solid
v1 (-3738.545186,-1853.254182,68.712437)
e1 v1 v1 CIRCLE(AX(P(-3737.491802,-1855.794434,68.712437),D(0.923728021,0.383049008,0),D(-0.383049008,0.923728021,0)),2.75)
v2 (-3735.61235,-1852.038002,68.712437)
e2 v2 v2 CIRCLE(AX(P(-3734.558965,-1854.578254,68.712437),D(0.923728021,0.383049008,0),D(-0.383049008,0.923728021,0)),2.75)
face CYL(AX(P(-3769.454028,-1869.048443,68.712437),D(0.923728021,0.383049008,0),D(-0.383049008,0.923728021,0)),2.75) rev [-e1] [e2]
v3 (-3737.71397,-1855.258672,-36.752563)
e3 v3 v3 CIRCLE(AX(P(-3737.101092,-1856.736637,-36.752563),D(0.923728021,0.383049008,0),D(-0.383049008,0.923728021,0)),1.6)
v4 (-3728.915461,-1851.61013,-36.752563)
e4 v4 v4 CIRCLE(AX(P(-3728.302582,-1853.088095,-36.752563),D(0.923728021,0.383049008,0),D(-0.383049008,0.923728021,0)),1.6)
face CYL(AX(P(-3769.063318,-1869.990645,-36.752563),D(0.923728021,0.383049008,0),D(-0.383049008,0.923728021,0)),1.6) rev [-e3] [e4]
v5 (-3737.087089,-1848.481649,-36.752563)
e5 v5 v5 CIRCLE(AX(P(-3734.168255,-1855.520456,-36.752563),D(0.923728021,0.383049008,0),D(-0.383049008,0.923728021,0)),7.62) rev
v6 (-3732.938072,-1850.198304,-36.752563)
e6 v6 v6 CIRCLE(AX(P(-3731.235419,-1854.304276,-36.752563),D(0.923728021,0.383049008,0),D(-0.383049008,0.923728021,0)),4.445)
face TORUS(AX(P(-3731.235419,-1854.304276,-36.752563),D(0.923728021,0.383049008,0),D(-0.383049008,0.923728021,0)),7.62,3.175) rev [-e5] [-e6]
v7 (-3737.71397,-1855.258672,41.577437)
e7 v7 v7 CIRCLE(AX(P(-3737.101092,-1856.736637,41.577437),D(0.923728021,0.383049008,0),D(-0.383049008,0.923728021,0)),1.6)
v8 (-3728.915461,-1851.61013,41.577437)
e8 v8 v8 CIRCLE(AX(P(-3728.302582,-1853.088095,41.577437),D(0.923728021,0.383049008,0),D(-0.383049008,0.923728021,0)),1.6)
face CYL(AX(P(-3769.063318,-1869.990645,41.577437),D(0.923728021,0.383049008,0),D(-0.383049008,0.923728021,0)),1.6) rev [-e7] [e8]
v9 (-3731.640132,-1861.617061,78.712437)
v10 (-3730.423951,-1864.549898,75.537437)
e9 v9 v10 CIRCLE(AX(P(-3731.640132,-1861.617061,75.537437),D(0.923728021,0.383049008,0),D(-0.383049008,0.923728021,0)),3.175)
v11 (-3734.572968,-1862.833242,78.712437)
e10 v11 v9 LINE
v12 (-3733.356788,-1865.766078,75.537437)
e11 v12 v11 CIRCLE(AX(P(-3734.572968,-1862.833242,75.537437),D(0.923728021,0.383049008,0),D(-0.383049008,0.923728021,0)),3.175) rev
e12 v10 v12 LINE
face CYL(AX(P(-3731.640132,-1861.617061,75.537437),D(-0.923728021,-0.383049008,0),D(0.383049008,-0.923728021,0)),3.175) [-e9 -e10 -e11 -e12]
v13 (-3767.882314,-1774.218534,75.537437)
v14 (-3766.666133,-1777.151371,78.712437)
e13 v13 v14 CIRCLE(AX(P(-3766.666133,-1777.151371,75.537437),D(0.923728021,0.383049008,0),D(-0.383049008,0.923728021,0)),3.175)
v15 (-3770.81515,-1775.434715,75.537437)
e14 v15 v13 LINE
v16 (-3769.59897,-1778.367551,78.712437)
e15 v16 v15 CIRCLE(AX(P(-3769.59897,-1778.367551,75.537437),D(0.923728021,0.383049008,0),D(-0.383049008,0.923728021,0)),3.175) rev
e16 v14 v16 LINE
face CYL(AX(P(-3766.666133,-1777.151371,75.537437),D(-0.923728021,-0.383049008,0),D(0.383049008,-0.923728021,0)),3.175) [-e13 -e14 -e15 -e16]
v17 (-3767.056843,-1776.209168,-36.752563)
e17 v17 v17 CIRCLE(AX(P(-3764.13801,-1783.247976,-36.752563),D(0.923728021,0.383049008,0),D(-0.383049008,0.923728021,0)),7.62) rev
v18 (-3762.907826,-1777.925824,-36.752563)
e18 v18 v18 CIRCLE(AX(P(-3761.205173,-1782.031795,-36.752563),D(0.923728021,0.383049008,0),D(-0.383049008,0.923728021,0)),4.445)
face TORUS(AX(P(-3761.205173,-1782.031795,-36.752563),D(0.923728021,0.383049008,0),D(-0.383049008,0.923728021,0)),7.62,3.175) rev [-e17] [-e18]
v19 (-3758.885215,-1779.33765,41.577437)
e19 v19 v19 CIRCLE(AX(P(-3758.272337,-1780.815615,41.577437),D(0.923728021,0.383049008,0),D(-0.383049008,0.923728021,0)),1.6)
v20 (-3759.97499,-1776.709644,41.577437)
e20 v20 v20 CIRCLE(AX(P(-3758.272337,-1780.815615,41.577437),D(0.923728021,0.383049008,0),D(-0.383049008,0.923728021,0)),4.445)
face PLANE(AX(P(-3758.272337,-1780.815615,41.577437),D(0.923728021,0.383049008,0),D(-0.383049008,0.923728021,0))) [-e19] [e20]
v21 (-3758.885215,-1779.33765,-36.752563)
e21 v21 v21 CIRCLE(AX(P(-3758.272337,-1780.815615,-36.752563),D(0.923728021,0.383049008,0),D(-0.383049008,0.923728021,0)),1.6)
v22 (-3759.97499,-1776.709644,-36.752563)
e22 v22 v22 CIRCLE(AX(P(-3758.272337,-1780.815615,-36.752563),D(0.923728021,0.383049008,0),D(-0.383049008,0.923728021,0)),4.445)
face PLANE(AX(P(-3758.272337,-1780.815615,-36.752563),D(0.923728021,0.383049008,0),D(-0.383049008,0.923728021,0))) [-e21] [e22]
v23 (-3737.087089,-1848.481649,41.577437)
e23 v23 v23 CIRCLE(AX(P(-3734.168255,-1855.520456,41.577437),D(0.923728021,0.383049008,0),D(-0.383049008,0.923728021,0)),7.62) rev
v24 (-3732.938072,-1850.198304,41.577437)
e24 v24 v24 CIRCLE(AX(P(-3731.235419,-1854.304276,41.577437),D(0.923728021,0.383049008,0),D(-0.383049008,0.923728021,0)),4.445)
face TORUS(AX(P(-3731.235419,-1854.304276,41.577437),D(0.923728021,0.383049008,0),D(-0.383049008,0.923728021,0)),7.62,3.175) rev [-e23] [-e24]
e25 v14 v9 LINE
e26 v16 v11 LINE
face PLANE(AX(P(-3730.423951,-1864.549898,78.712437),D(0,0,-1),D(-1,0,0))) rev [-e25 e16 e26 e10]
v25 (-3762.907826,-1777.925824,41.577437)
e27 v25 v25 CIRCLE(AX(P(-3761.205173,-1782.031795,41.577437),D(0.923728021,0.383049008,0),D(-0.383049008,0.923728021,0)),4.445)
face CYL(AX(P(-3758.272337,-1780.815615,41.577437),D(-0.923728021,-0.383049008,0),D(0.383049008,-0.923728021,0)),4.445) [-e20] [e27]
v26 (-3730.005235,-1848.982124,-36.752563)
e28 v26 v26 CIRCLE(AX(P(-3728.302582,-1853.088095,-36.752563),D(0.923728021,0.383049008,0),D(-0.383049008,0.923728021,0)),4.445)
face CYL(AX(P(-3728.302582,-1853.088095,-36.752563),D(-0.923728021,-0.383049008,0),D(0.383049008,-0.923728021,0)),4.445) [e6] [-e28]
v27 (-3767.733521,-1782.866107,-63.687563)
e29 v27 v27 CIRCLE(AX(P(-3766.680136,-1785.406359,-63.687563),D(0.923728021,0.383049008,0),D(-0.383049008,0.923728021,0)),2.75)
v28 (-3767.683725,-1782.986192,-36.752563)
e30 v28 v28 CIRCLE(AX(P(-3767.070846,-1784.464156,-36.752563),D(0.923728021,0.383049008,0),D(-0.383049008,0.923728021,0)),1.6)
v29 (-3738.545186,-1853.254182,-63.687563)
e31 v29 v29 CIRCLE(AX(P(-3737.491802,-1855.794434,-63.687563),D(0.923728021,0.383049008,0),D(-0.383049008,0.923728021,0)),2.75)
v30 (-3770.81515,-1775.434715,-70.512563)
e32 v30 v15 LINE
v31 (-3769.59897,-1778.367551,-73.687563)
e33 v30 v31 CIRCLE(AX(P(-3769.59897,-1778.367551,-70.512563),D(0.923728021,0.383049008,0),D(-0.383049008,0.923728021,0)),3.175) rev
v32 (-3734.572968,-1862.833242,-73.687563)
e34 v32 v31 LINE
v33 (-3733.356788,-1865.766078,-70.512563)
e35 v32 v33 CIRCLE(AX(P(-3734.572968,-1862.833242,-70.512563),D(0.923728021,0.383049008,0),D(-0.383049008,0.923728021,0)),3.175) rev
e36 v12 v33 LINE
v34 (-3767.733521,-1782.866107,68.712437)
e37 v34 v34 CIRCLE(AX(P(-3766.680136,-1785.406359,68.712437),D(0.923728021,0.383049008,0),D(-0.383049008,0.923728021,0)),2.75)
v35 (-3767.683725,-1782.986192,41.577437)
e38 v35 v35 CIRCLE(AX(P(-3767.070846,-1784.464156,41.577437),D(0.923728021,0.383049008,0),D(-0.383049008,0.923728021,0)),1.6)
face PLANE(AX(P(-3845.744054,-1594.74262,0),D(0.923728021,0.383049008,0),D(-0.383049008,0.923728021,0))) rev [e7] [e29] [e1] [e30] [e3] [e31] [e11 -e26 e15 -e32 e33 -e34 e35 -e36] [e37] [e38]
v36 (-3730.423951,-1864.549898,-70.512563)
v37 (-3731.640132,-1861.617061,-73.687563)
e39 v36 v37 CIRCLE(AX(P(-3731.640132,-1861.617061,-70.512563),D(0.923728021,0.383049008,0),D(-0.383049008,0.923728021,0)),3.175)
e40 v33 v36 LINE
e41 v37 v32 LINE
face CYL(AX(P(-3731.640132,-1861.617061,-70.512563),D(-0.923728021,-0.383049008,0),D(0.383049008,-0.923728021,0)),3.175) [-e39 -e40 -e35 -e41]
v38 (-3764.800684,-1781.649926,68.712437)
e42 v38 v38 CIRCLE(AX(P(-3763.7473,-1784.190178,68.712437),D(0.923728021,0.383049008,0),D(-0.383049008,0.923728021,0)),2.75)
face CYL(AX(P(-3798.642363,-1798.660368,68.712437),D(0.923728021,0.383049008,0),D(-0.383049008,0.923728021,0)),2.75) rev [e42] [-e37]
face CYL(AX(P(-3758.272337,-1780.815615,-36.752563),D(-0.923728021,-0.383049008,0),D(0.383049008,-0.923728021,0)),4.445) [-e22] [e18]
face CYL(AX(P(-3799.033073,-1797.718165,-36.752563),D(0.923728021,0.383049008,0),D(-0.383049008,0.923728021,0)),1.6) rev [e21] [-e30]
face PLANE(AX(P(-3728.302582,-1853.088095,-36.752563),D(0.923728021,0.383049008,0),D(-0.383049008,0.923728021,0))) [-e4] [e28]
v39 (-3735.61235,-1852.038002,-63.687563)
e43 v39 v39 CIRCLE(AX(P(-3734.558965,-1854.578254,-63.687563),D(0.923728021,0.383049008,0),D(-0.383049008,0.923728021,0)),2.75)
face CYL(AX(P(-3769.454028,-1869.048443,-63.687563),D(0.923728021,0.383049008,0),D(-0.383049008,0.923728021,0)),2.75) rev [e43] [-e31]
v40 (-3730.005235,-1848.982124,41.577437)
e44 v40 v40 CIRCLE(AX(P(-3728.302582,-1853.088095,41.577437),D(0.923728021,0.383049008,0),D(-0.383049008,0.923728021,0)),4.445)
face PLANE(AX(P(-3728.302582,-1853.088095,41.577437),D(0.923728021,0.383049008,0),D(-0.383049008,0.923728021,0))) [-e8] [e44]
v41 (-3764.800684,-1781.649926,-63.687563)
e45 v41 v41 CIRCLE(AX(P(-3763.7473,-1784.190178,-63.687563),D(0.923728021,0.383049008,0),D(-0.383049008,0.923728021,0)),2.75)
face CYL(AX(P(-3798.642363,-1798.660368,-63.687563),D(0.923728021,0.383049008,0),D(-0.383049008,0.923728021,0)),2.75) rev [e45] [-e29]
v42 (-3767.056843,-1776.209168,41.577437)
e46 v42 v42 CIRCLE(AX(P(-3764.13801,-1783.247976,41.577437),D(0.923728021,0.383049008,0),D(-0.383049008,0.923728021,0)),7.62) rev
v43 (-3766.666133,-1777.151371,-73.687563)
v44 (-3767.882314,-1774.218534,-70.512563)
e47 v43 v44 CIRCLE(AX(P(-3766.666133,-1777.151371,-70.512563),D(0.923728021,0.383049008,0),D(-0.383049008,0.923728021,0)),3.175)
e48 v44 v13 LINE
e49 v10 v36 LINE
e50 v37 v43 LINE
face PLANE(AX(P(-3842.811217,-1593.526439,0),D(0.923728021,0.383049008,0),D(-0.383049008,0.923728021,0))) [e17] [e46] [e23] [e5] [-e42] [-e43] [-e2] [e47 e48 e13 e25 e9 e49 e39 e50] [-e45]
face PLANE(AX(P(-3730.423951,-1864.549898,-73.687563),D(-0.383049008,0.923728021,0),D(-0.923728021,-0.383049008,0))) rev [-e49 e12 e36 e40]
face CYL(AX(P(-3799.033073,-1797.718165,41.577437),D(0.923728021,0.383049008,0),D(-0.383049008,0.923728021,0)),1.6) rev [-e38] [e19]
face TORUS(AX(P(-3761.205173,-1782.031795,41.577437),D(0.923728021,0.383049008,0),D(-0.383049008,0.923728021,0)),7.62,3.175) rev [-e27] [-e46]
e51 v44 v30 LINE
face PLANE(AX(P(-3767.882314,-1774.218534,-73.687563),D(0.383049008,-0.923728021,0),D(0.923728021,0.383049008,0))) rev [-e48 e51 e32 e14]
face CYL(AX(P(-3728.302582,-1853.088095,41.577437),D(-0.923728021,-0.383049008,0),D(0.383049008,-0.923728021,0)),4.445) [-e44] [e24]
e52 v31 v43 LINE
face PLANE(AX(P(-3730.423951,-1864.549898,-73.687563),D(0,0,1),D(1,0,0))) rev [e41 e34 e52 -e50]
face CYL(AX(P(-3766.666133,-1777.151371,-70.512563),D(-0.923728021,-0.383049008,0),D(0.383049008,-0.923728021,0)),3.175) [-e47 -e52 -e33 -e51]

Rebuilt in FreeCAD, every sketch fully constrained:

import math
import FreeCAD as App
import Part
import Sketcher
Q = App.Units.Quantity


def edges_at(feature, points):
    """Names of the edges that pass closest to the given points."""
    edges = feature.Shape.Edges
    near = lambda p: min(range(len(edges)), key=lambda i: edges[i].distToShape(Part.Vertex(*p))[0])
    return sorted({f"Edge{near(p) + 1}" for p in points})

doc = App.newDocument("Part")
body = doc.addObject("PartDesign::Body", "Body")

# Sketch on an angled plane
sketch1 = body.newObject("Sketcher::SketchObject", "Sketch")
sketch1.Placement = App.Placement(App.Vector(-3845.744054, -1594.74262, 0), App.Rotation(App.Vector(0, 0, -1), App.Vector(-0.383049008, 0.923728021, 0), App.Vector(0.923728021, 0.383049008, 0), "ZXY"))
sketch1.addGeometry([
    Part.LineSegment(App.Vector(-79, -196, 0), App.Vector(-79, -293, 0)),
    Part.LineSegment(App.Vector(-79, -293, 0), App.Vector(74, -293, 0)),
    Part.LineSegment(App.Vector(74, -293, 0), App.Vector(74, -196, 0)),
    Part.LineSegment(App.Vector(74, -196, 0), App.Vector(-79, -196, 0)),
], False)
sketch1.addConstraint([
    Sketcher.Constraint("Coincident", 0, 2, 1, 1),
    Sketcher.Constraint("Coincident", 1, 2, 2, 1),
    Sketcher.Constraint("Coincident", 2, 2, 3, 1),
    Sketcher.Constraint("Coincident", 3, 2, 0, 1),
    Sketcher.Constraint("Vertical", 0),
    Sketcher.Constraint("Horizontal", 1),
    Sketcher.Constraint("Vertical", 2),
    Sketcher.Constraint("Horizontal", 3),
    Sketcher.Constraint("DistanceX", 1, 1, 1, 2, Q("6 in")),
    Sketcher.Constraint("DistanceY", 0, 2, 0, 1, Q("3.85 in")),
    Sketcher.Constraint("DistanceX", 0, 2, -1, 1, 78.712437),
    Sketcher.Constraint("DistanceY", 0, 2, -1, 1, 293.401793),
])
pad1 = body.newObject("PartDesign::Pad", "Pad")
pad1.Profile = sketch1
pad1.Length = Q("0.125 in")

# Sketch on an angled plane
sketch2 = body.newObject("Sketcher::SketchObject", "Sketch001")
sketch2.Placement = App.Placement(App.Vector(-3842.811217, -1593.526439, 0), App.Rotation(App.Vector(0, 0, -1), App.Vector(-0.383049008, 0.923728021, 0), App.Vector(0.923728021, 0.383049008, 0), "ZXY"))
sketch2.addGeometry([
    Part.Circle(App.Vector(36.8, -283.6, 0), App.Vector(0, 0, 1), 4.4),
    Part.Circle(App.Vector(-41.6, -283.6, 0), App.Vector(0, 0, 1), 4.4),
    Part.Circle(App.Vector(-41.6, -205.4, 0), App.Vector(0, 0, 1), 4.4),
    Part.Circle(App.Vector(36.8, -205.4, 0), App.Vector(0, 0, 1), 4.4),
], False)
sketch2.addConstraint([
    Sketcher.Constraint("Equal", 0, 1),
    Sketcher.Constraint("Equal", 1, 2),
    Sketcher.Constraint("Equal", 2, 3),
    Sketcher.Constraint("Horizontal", 0, 3, 1, 3),
    Sketcher.Constraint("Horizontal", 2, 3, 3, 3),
    Sketcher.Constraint("Vertical", 1, 3, 2, 3),
    Sketcher.Constraint("Vertical", 0, 3, 3, 3),
    Sketcher.Constraint("Diameter", 0, Q("0.35 in")),
    Sketcher.Constraint("DistanceX", 1, 3, 0, 3, 78.33),
    Sketcher.Constraint("DistanceY", 1, 3, 2, 3, 78.24),
    Sketcher.Constraint("DistanceX", -1, 1, 0, 3, 36.752563),
    Sketcher.Constraint("DistanceY", 0, 3, -1, 1, 283.626793),
])
pad2 = body.newObject("PartDesign::Pad", "Pad001")
pad2.Profile = sketch2
pad2.Length = Q("0.25 in")
doc.recompute()

fillet = body.newObject("PartDesign::Fillet", "Fillet")
fillet.Base = (pad2, edges_at(pad2, [
    (-3734.168, -1855.52, -32.308),
    (-3734.168, -1855.52, 46.022),
    (-3764.138, -1783.248, 46.022),
    (-3764.138, -1783.248, -32.308),
]))
fillet.Radius = Q("0.125 in")

# Sketch on an angled plane
sketch3 = body.newObject("Sketcher::SketchObject", "Sketch002")
sketch3.Placement = App.Placement(App.Vector(-3836.945544, -1591.094078, 0), App.Rotation(App.Vector(0, 0, -1), App.Vector(-0.383049008, 0.923728021, 0), App.Vector(0.923728021, 0.383049008, 0), "ZXY"))
sketch3.addGeometry([
    Part.Circle(App.Vector(36.8, -205.4, 0), App.Vector(0, 0, 1), 1.6),
    Part.Circle(App.Vector(-41.6, -205.4, 0), App.Vector(0, 0, 1), 1.6),
    Part.Circle(App.Vector(-41.6, -283.6, 0), App.Vector(0, 0, 1), 1.6),
    Part.Circle(App.Vector(36.8, -283.6, 0), App.Vector(0, 0, 1), 1.6),
], False)
sketch3.addConstraint([
    Sketcher.Constraint("Equal", 0, 1),
    Sketcher.Constraint("Equal", 1, 2),
    Sketcher.Constraint("Equal", 2, 3),
    Sketcher.Constraint("Horizontal", 0, 3, 1, 3),
    Sketcher.Constraint("Horizontal", 2, 3, 3, 3),
    Sketcher.Constraint("Vertical", 1, 3, 2, 3),
    Sketcher.Constraint("Vertical", 0, 3, 3, 3),
    Sketcher.Constraint("Diameter", 0, 3.2),
    Sketcher.Constraint("DistanceX", 1, 3, 0, 3, 78.33),
    Sketcher.Constraint("DistanceY", 2, 3, 1, 3, 78.24),
    Sketcher.Constraint("DistanceX", -1, 1, 0, 3, 36.752563),
    Sketcher.Constraint("DistanceY", 0, 3, -1, 1, 205.386793),
])
pocket1 = body.newObject("PartDesign::Pocket", "Pocket")
pocket1.Profile = sketch3
pocket1.Type = "ThroughAll"
doc.recompute()

fillet2 = body.newObject("PartDesign::Fillet", "Fillet001")
fillet2.Base = (pocket1, edges_at(pocket1, [
    (-3731.89, -1865.158, -73.688),
    (-3731.89, -1865.158, 78.712),
    (-3769.349, -1774.827, 78.712),
    (-3769.349, -1774.827, -73.688),
]))
fillet2.Radius = Q("0.125 in")

# Sketch on an angled plane
sketch4 = body.newObject("Sketcher::SketchObject", "Sketch003")
sketch4.Placement = App.Placement(App.Vector(-3842.811217, -1593.526439, 0), App.Rotation(App.Vector(0, 0, -1), App.Vector(-0.383049008, 0.923728021, 0), App.Vector(0.923728021, 0.383049008, 0), "ZXY"))
sketch4.addGeometry([
    Part.ArcOfCircle(Part.Circle(App.Vector(63.7, -282.6, 0), App.Vector(0, 0, 1), 2.8), math.radians(40), math.radians(140)),  # 0
    Part.ArcOfCircle(Part.Circle(App.Vector(63.7, -282.6, 0), App.Vector(0, 0, 1), 2.8), math.radians(140), math.radians(220)),  # 1
    Part.ArcOfCircle(Part.Circle(App.Vector(63.7, -282.6, 0), App.Vector(0, 0, 1), 2.7), math.radians(-140), math.radians(-40)),  # 2
    Part.ArcOfCircle(Part.Circle(App.Vector(63.7, -282.6, 0), App.Vector(0, 0, 1), 2.8), math.radians(-40), math.radians(0)),  # 3
    Part.ArcOfCircle(Part.Circle(App.Vector(63.7, -282.6, 0), App.Vector(0, 0, 1), 2.8), math.radians(0), math.radians(40)),  # 4
    Part.ArcOfCircle(Part.Circle(App.Vector(63.7, -206.4, 0), App.Vector(0, 0, 1), 2.8), math.radians(40), math.radians(140)),  # 5
    Part.ArcOfCircle(Part.Circle(App.Vector(63.7, -206.4, 0), App.Vector(0, 0, 1), 2.8), math.radians(140), math.radians(220)),  # 6
    Part.ArcOfCircle(Part.Circle(App.Vector(63.7, -206.4, 0), App.Vector(0, 0, 1), 2.7), math.radians(-140), math.radians(-40)),  # 7
    Part.ArcOfCircle(Part.Circle(App.Vector(63.7, -206.4, 0), App.Vector(0, 0, 1), 2.8), math.radians(-40), math.radians(0)),  # 8
    Part.ArcOfCircle(Part.Circle(App.Vector(63.7, -206.4, 0), App.Vector(0, 0, 1), 2.8), math.radians(0), math.radians(40)),  # 9
    Part.ArcOfCircle(Part.Circle(App.Vector(-68.7, -206.4, 0), App.Vector(0, 0, 1), 2.8), math.radians(140), math.radians(220)),  # 10
    Part.ArcOfCircle(Part.Circle(App.Vector(-68.7, -206.4, 0), App.Vector(0, 0, 1), 2.7), math.radians(-140), math.radians(-40)),  # 11
    Part.ArcOfCircle(Part.Circle(App.Vector(-68.7, -206.4, 0), App.Vector(0, 0, 1), 2.8), math.radians(-40), math.radians(0)),  # 12
    Part.ArcOfCircle(Part.Circle(App.Vector(-68.7, -206.4, 0), App.Vector(0, 0, 1), 2.8), math.radians(0), math.radians(40)),  # 13
    Part.ArcOfCircle(Part.Circle(App.Vector(-68.7, -206.4, 0), App.Vector(0, 0, 1), 2.8), math.radians(40), math.radians(140)),  # 14
    Part.ArcOfCircle(Part.Circle(App.Vector(-68.7, -282.6, 0), App.Vector(0, 0, 1), 2.8), math.radians(40), math.radians(140)),  # 15
    Part.ArcOfCircle(Part.Circle(App.Vector(-68.7, -282.6, 0), App.Vector(0, 0, 1), 2.8), math.radians(140), math.radians(220)),  # 16
    Part.ArcOfCircle(Part.Circle(App.Vector(-68.7, -282.6, 0), App.Vector(0, 0, 1), 2.7), math.radians(-140), math.radians(-40)),  # 17
    Part.ArcOfCircle(Part.Circle(App.Vector(-68.7, -282.6, 0), App.Vector(0, 0, 1), 2.8), math.radians(-40), math.radians(0)),  # 18
    Part.ArcOfCircle(Part.Circle(App.Vector(-68.7, -282.6, 0), App.Vector(0, 0, 1), 2.8), math.radians(0), math.radians(40)),  # 19
], False)
sketch4.addConstraint([
    Sketcher.Constraint("Tangent", 0, 2, 1, 1),
    Sketcher.Constraint("Tangent", 1, 2, 2, 1),
    Sketcher.Constraint("Tangent", 2, 2, 3, 1),
    Sketcher.Constraint("Tangent", 3, 2, 4, 1),
    Sketcher.Constraint("Tangent", 4, 2, 0, 1),
    Sketcher.Constraint("Tangent", 5, 2, 6, 1),
    Sketcher.Constraint("Tangent", 6, 2, 7, 1),
    Sketcher.Constraint("Tangent", 7, 2, 8, 1),
    Sketcher.Constraint("Tangent", 8, 2, 9, 1),
    Sketcher.Constraint("Tangent", 9, 2, 5, 1),
    Sketcher.Constraint("Tangent", 10, 2, 11, 1),
    Sketcher.Constraint("Tangent", 11, 2, 12, 1),
    Sketcher.Constraint("Tangent", 12, 2, 13, 1),
    Sketcher.Constraint("Tangent", 13, 2, 14, 1),
    Sketcher.Constraint("Tangent", 14, 2, 10, 1),
    Sketcher.Constraint("Tangent", 15, 2, 16, 1),
    Sketcher.Constraint("Tangent", 16, 2, 17, 1),
    Sketcher.Constraint("Tangent", 17, 2, 18, 1),
    Sketcher.Constraint("Tangent", 18, 2, 19, 1),
    Sketcher.Constraint("Tangent", 19, 2, 15, 1),
    Sketcher.Constraint("Coincident", 2, 3, 0, 3),
    Sketcher.Constraint("Coincident", 7, 3, 5, 3),
    Sketcher.Constraint("Coincident", 12, 3, 10, 3),
    Sketcher.Constraint("Coincident", 17, 3, 15, 3),
    Sketcher.Constraint("Equal", 4, 5),
    Sketcher.Constraint("Equal", 9, 10),
    Sketcher.Constraint("Equal", 14, 15),
    Sketcher.Constraint("Horizontal", 9, 3, 10, 3),
    Sketcher.Constraint("Horizontal", 4, 3, 15, 3),
    Sketcher.Constraint("Horizontal", 1, 2, 2, 2),
    Sketcher.Constraint("Horizontal", 19, 3, 3, 2),
    Sketcher.Constraint("Horizontal", 0, 2, 4, 2),
    Sketcher.Constraint("Horizontal", 6, 2, 7, 2),
    Sketcher.Constraint("Horizontal", 14, 3, 8, 2),
    Sketcher.Constraint("Horizontal", 5, 2, 9, 2),
    Sketcher.Constraint("Horizontal", 7, 2, 10, 2),
    Sketcher.Constraint("Horizontal", 10, 2, 11, 2),
    Sketcher.Constraint("Horizontal", 8, 2, 12, 2),
    Sketcher.Constraint("Horizontal", 9, 2, 13, 2),
    Sketcher.Constraint("Horizontal", 13, 2, 14, 2),
    Sketcher.Constraint("Horizontal", 4, 2, 15, 2),
    Sketcher.Constraint("Horizontal", 2, 2, 16, 2),
    Sketcher.Constraint("Horizontal", 16, 2, 17, 2),
    Sketcher.Constraint("Horizontal", 3, 2, 18, 2),
    Sketcher.Constraint("Horizontal", 15, 2, 19, 2),
    Sketcher.Constraint("Vertical", 4, 3, 5, 3),
    Sketcher.Constraint("Vertical", 14, 3, 15, 3),
    Sketcher.Constraint("Vertical", 0, 2, 1, 2),
    Sketcher.Constraint("Vertical", 1, 2, 5, 2),
    Sketcher.Constraint("Vertical", 5, 2, 6, 2),
    Sketcher.Constraint("DistanceY", 3, 3, 5, 3, Q("3 in")),
    Sketcher.Constraint("Radius", 0, 2.75),
    Sketcher.Constraint("DistanceX", 10, 3, 9, 3, 132.4),
    Sketcher.Constraint("DistanceX", 0, 2, 3, 3, 2.1),
    Sketcher.Constraint("DistanceY", 1, 2, -1, 1, 284.382321),
    Sketcher.Constraint("DistanceX", -1, 1, 0, 3, 63.687563),
])
pocket2 = body.newObject("PartDesign::Pocket", "Pocket001")
pocket2.Profile = sketch4
pocket2.Type = "ThroughAll"

doc.recompute()
